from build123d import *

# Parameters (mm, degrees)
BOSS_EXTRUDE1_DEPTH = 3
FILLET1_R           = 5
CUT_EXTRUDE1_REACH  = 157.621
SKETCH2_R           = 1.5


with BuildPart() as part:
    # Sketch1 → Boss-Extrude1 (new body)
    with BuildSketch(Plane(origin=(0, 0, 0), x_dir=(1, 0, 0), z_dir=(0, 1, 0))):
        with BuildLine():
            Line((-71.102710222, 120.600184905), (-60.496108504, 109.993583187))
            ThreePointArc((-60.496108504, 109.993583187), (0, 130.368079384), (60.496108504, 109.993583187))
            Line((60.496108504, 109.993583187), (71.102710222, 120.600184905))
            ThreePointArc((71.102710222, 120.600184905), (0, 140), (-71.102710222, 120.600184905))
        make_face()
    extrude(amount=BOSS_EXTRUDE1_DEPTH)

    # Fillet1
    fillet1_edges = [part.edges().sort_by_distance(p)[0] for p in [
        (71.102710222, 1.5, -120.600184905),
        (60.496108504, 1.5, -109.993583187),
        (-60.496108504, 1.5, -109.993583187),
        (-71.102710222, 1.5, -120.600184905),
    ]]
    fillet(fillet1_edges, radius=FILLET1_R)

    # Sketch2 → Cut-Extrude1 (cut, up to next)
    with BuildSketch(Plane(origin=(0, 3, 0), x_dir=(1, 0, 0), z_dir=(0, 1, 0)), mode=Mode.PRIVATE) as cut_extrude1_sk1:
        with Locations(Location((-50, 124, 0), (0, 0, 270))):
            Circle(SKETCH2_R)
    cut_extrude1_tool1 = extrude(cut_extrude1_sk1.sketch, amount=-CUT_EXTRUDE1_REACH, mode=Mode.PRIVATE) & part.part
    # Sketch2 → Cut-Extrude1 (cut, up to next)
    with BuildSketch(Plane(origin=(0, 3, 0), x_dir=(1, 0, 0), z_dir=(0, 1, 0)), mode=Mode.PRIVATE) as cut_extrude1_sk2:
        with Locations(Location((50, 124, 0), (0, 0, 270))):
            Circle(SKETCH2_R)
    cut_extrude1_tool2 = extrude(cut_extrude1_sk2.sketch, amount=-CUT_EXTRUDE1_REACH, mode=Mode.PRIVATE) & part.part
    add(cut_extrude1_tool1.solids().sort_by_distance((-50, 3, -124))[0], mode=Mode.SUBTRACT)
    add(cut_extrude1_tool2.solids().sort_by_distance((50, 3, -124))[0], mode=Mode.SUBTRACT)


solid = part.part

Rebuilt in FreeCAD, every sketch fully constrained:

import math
import FreeCAD as App
import Part
import Sketcher
from FreeCAD import Vector
Q = App.Units.Quantity


def edges_at(feature, points):
    """Names of the edges that pass closest to the given points."""
    edges = feature.Shape.Edges
    near = lambda p: min(range(len(edges)), key=lambda i: edges[i].distToShape(Part.Vertex(*p))[0])
    return sorted({f"Edge{near(p) + 1}" for p in points})

doc = App.newDocument("Part")
body = doc.addObject("PartDesign::Body", "Body")

# Sketch on XZ plane
sketch1 = body.newObject("Sketcher::SketchObject", "Sketch")
sketch1.AttachmentSupport = (doc.getObject("XZ_Plane"), [""])
sketch1.MapMode = "FlatFace"
sketch1.addGeometry([
    Part.LineSegment(Vector(-71, -121, 0), Vector(-60, -110, 0)),
    Part.ArcOfCircle(Part.Circle(Vector(0, -30, 0), Vector(0, 0, 1), 100), math.radians(-127), math.radians(-53)),
    Part.LineSegment(Vector(60, -110, 0), Vector(71, -121, 0)),
    Part.ArcOfCircle(Part.Circle(Vector(0, 0, 0), Vector(0, 0, 1), 140), math.radians(-121), math.radians(-59)),
], False)
sketch1.addConstraint([
    Sketcher.Constraint("Coincident", 0, 2, 1, 1),
    Sketcher.Constraint("Coincident", 1, 2, 2, 1),
    Sketcher.Constraint("Coincident", 2, 2, 3, 2),
    Sketcher.Constraint("Coincident", 3, 1, 0, 1),
    Sketcher.Constraint("Coincident", 3, 3, -1, 1),
    Sketcher.Constraint("Symmetric", 0, 2, 1, 2, -2),
    Sketcher.Constraint("Perpendicular", 0, 2),
    Sketcher.Constraint("Horizontal", 2, 2, 3, 1),
    Sketcher.Constraint("Radius", 1, Q("100 mm")),
    Sketcher.Constraint("Radius", 3, Q("140 mm")),
    Sketcher.Constraint("Distance", 0, Q("15 mm")),
    Sketcher.Constraint("DistanceY", 1, 3, -1, 1, Q("30.368079 mm")),
])
pad1 = body.newObject("PartDesign::Pad", "Pad")
pad1.Profile = sketch1
pad1.Length = 3
pad1.Reversed = True
doc.recompute()

fillet = body.newObject("PartDesign::Fillet", "Fillet")
fillet.Base = (pad1, edges_at(pad1, [
    (71.103, 1.5, -120.6),
    (60.496, 1.5, -109.994),
    (-60.496, 1.5, -109.994),
    (-71.103, 1.5, -120.6),
]))
fillet.Radius = 5

# Sketch on XZ plane
sketch2 = body.newObject("Sketcher::SketchObject", "Sketch001")
sketch2.AttachmentSupport = (doc.getObject("XZ_Plane"), [""])
sketch2.MapMode = "FlatFace"
sketch2.AttachmentOffset = App.Placement(Vector(0, 0, -3), App.Rotation())
sketch2.addGeometry(Part.Circle(Vector(-50, -124, 0), Vector(0, 0, 1), 1.5), False)
sketch2.addConstraint([
    Sketcher.Constraint("Diameter", 0, Q("3 mm")),
    Sketcher.Constraint("DistanceX", 0, 3, -1, 1, Q("50 mm")),
    Sketcher.Constraint("DistanceY", 0, 3, -1, 1, Q("124 mm")),
])
pocket1 = body.newObject("PartDesign::Pocket", "Pocket")
pocket1.Profile = sketch2
pocket1.Type = "UpToFirst"
pocket1.Reversed = True

# Sketch on XZ plane
sketch3 = body.newObject("Sketcher::SketchObject", "Sketch002")
sketch3.AttachmentSupport = (doc.getObject("XZ_Plane"), [""])
sketch3.MapMode = "FlatFace"
sketch3.AttachmentOffset = App.Placement(Vector(0, 0, -3), App.Rotation())
sketch3.addGeometry(Part.Circle(Vector(50, -124, 0), Vector(0, 0, 1), 1.5), False)
sketch3.addConstraint([
    Sketcher.Constraint("Diameter", 0, Q("3 mm")),
    Sketcher.Constraint("DistanceX", -1, 1, 0, 3, Q("50 mm")),
    Sketcher.Constraint("DistanceY", 0, 3, -1, 1, Q("124 mm")),
])
pocket2 = body.newObject("PartDesign::Pocket", "Pocket001")
pocket2.Profile = sketch3
pocket2.Type = "UpToFirst"
pocket2.Reversed = True

doc.recompute()
